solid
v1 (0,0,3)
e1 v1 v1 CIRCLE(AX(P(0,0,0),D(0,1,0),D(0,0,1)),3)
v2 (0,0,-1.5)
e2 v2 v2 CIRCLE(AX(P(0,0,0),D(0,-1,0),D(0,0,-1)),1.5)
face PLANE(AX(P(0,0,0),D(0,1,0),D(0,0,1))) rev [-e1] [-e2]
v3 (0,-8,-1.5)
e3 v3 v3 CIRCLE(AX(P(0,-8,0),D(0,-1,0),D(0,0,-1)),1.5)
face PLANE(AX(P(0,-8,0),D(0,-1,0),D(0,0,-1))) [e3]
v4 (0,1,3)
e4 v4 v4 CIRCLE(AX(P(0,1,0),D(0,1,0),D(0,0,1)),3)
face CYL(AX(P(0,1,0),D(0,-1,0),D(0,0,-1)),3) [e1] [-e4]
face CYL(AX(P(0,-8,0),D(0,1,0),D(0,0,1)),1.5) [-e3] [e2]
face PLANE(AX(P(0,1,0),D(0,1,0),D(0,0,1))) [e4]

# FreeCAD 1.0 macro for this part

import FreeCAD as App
import Part
import Sketcher
from FreeCAD import Vector

doc = App.newDocument("Part")
body = doc.addObject("PartDesign::Body", "Body")

# Sketch on XZ plane
sketch1 = doc.addObject("Sketcher::SketchObject", "Sketch")
body.addObject(sketch1)
sketch1.AttachmentSupport = (doc.XZ_Plane, [""])
sketch1.MapMode = "FlatFace"
sketch1.addGeometry(Part.Circle(Vector(0, 0, 0), Vector(0, 0, 1), 3), False)
sketch1.addConstraint(Sketcher.Constraint("Coincident", 0, 3, -1, 1))
sketch1.addConstraint(Sketcher.Constraint("Diameter", 0, 6.0))
pad1 = doc.addObject("PartDesign::Pad", "Pad")
body.addObject(pad1)
pad1.Profile = sketch1
pad1.Length = 1
pad1.Reversed = True

# Sketch on XZ plane
sketch2 = doc.addObject("Sketcher::SketchObject", "Sketch001")
body.addObject(sketch2)
sketch2.AttachmentSupport = (doc.XZ_Plane, [""])
sketch2.MapMode = "FlatFace"
sketch2.addGeometry(Part.Circle(Vector(0, 0, 0), Vector(0, 0, 1), 1.5), False)
sketch2.addConstraint(Sketcher.Constraint("Coincident", 0, 3, -1, 1))
sketch2.addConstraint(Sketcher.Constraint("Diameter", 0, 3.0))
pad2 = doc.addObject("PartDesign::Pad", "Pad001")
body.addObject(pad2)
pad2.Profile = sketch2
pad2.Length = 8

doc.recompute()
